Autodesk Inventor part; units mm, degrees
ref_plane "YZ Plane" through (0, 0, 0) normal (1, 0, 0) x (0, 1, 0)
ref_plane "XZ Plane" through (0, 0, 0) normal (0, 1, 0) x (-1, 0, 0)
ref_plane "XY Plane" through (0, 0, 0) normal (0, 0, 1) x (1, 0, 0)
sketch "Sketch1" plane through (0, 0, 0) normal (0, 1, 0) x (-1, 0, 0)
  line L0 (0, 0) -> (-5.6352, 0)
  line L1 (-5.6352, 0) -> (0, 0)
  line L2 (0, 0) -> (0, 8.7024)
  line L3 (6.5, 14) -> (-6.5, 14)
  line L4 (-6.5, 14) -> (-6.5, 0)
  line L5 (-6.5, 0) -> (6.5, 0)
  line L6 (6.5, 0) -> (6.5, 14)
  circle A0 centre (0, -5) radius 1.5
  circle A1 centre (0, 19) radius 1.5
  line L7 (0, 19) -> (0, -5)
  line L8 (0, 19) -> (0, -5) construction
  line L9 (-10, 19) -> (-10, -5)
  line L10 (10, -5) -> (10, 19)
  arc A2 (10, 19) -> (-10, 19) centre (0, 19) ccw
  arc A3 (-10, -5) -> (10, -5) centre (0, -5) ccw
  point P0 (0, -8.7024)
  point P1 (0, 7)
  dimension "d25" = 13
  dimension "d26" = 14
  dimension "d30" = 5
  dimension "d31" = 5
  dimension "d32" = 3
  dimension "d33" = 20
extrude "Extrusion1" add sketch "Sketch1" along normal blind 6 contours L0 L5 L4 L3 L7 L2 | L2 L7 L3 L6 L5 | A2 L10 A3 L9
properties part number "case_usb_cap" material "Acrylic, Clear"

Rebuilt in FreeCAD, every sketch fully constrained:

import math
import FreeCAD as App
import Part
import Sketcher

V = App.Vector

doc = App.newDocument("Part")
body = doc.addObject("PartDesign::Body", "Body")

# Sketch on XZ plane
sketch1 = body.newObject("Sketcher::SketchObject", "Sketch")
sketch1.AttachmentSupport = (doc.getObject("XZ_Plane"), [""])
sketch1.MapMode = "FlatFace"
sketch1.addGeometry([
    Part.ArcOfCircle(Part.Circle(V(0, 19, 0), V(0, 0, 1), 10), math.radians(0), math.radians(180)),  # 0
    Part.LineSegment(V(10, 19, 0), V(10, -5, 0)),  # 1
    Part.ArcOfCircle(Part.Circle(V(0, -5, 0), V(0, 0, 1), 10), math.radians(180), math.radians(360)),  # 2
    Part.LineSegment(V(-10, -5, 0), V(-10, 19, 0)),  # 3
    Part.Circle(V(0, -5, 0), V(0, 0, 1), 1.5),  # 4
    Part.Circle(V(0, 19, 0), V(0, 0, 1), 1.5),  # 5
], False)
sketch1.addConstraint([
    Sketcher.Constraint("Tangent", 0, 1, 1, 1),
    Sketcher.Constraint("Tangent", 1, 2, 2, 2),
    Sketcher.Constraint("Tangent", 2, 1, 3, 1),
    Sketcher.Constraint("Tangent", 3, 2, 0, 2),
    Sketcher.Constraint("Vertical", 1),
    Sketcher.Constraint("Vertical", 3),
    Sketcher.Constraint("Coincident", 4, 3, 2, 3),
    Sketcher.Constraint("Coincident", 5, 3, 0, 3),
    Sketcher.Constraint("Equal", 4, 5),
    Sketcher.Constraint("PointOnObject", 0, 3, -2),
    Sketcher.Constraint("Diameter", 4, 3.0),
    Sketcher.Constraint("Radius", 0, 10.0),
    Sketcher.Constraint("DistanceY", 2, 3, -1, 1, 5.0),
    Sketcher.Constraint("DistanceY", 1, 2, 1, 1, 24.0),
])
pad1 = body.newObject("PartDesign::Pad", "Pad")
pad1.Profile = sketch1
pad1.Length = 6
pad1.Reversed = True

doc.recompute()
